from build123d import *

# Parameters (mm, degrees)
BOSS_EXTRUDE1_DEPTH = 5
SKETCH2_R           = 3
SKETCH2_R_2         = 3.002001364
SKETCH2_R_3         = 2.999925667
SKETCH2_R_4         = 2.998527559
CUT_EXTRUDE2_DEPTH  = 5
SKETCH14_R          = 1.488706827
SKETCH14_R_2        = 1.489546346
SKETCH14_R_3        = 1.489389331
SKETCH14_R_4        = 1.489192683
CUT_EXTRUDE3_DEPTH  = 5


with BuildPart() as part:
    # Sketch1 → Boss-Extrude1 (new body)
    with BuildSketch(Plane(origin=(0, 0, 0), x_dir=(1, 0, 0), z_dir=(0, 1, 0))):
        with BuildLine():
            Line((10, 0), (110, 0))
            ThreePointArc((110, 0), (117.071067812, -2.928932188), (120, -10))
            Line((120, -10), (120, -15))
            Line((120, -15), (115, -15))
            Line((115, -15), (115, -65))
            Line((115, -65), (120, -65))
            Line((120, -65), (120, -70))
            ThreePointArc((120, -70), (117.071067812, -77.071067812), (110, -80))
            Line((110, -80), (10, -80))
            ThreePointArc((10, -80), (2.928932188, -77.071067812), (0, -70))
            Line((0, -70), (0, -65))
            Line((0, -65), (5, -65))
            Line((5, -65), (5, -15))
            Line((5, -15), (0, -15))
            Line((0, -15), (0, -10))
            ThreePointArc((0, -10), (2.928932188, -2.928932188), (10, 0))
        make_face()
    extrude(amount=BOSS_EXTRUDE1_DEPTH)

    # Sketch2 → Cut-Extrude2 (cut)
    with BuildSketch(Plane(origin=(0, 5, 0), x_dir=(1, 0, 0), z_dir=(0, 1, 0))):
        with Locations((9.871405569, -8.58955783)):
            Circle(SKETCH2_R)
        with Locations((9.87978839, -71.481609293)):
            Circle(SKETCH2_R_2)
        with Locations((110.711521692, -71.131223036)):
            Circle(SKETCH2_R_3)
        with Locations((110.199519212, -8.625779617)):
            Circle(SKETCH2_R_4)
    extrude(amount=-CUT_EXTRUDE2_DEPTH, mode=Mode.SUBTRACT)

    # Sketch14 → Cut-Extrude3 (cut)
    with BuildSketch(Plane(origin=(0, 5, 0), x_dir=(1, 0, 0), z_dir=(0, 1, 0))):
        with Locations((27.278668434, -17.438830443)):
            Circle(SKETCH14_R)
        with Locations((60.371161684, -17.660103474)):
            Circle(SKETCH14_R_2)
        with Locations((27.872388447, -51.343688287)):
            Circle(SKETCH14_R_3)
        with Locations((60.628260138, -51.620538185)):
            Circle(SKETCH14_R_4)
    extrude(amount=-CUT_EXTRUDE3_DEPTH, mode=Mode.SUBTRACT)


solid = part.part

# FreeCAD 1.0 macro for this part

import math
import FreeCAD as App
import Part
import Sketcher
from FreeCAD import Vector

doc = App.newDocument("Part")
body = doc.addObject("PartDesign::Body", "Body")

# Sketch on XZ plane
sketch1 = body.newObject("Sketcher::SketchObject", "Sketch")
sketch1.AttachmentSupport = (doc.getObject("XZ_Plane"), [""])
sketch1.MapMode = "FlatFace"
sketch1.addGeometry([
    Part.LineSegment(Vector(110, 0, 0), Vector(10, 0, 0)),  # 0
    Part.ArcOfCircle(Part.Circle(Vector(10, 10, 0), Vector(0, 0, 1), 10), math.radians(180), math.radians(270)),  # 1
    Part.LineSegment(Vector(0, 10, 0), Vector(0, 15, 0)),  # 2
    Part.LineSegment(Vector(0, 15, 0), Vector(5, 15, 0)),  # 3
    Part.LineSegment(Vector(5, 15, 0), Vector(5, 65, 0)),  # 4
    Part.LineSegment(Vector(5, 65, 0), Vector(0, 65, 0)),  # 5
    Part.LineSegment(Vector(0, 65, 0), Vector(0, 70, 0)),  # 6
    Part.ArcOfCircle(Part.Circle(Vector(10, 70, 0), Vector(0, 0, 1), 10), math.radians(90), math.radians(180)),  # 7
    Part.LineSegment(Vector(10, 80, 0), Vector(110, 80, 0)),  # 8
    Part.ArcOfCircle(Part.Circle(Vector(110, 70, 0), Vector(0, 0, 1), 10), math.radians(0), math.radians(90)),  # 9
    Part.LineSegment(Vector(120, 70, 0), Vector(120, 65, 0)),  # 10
    Part.LineSegment(Vector(120, 65, 0), Vector(115, 65, 0)),  # 11
    Part.LineSegment(Vector(115, 65, 0), Vector(115, 15, 0)),  # 12
    Part.LineSegment(Vector(115, 15, 0), Vector(120, 15, 0)),  # 13
    Part.LineSegment(Vector(120, 15, 0), Vector(120, 10, 0)),  # 14
    Part.ArcOfCircle(Part.Circle(Vector(110, 10, 0), Vector(0, 0, 1), 10), math.radians(-90), math.radians(0)),  # 15
], False)
sketch1.addConstraint([
    Sketcher.Constraint("Tangent", 0, 2, 1, 2),
    Sketcher.Constraint("Tangent", 1, 1, 2, 1),
    Sketcher.Constraint("Coincident", 2, 2, 3, 1),
    Sketcher.Constraint("Coincident", 3, 2, 4, 1),
    Sketcher.Constraint("Coincident", 4, 2, 5, 1),
    Sketcher.Constraint("Coincident", 5, 2, 6, 1),
    Sketcher.Constraint("Tangent", 6, 2, 7, 2),
    Sketcher.Constraint("Tangent", 7, 1, 8, 1),
    Sketcher.Constraint("Tangent", 8, 2, 9, 2),
    Sketcher.Constraint("Tangent", 9, 1, 10, 1),
    Sketcher.Constraint("Coincident", 10, 2, 11, 1),
    Sketcher.Constraint("Coincident", 11, 2, 12, 1),
    Sketcher.Constraint("Coincident", 12, 2, 13, 1),
    Sketcher.Constraint("Coincident", 13, 2, 14, 1),
    Sketcher.Constraint("Tangent", 14, 2, 15, 2),
    Sketcher.Constraint("Tangent", 15, 1, 0, 1),
    Sketcher.Constraint("Horizontal", 0),
    Sketcher.Constraint("Vertical", 2),
    Sketcher.Constraint("Horizontal", 3),
    Sketcher.Constraint("Vertical", 4),
    Sketcher.Constraint("Horizontal", 5),
    Sketcher.Constraint("Vertical", 6),
    Sketcher.Constraint("Horizontal", 8),
    Sketcher.Constraint("Vertical", 10),
    Sketcher.Constraint("Horizontal", 11),
    Sketcher.Constraint("Vertical", 12),
    Sketcher.Constraint("Horizontal", 13),
    Sketcher.Constraint("Vertical", 14),
    Sketcher.Constraint("Equal", 1, 7),
    Sketcher.Constraint("Equal", 7, 9),
    Sketcher.Constraint("Equal", 9, 15),
    Sketcher.Constraint("PointOnObject", 0, 2, -1),
    Sketcher.Constraint("PointOnObject", 1, 1, -2),
    Sketcher.Constraint("PointOnObject", 5, 2, -2),
    Sketcher.Constraint("Horizontal", 5, 2, 10, 2),
    Sketcher.Constraint("Horizontal", 3, 2, 12, 2),
    Sketcher.Constraint("Vertical", 9, 3, 15, 3),
    Sketcher.Constraint("Equal", 5, 11),
    Sketcher.Constraint("Equal", 13, 2),
    Sketcher.Constraint("Equal", 2, 6),
    Sketcher.Constraint("Radius", 1, 10.0),
    Sketcher.Constraint("DistanceX", 0, 2, 0, 1, 100.0),
    Sketcher.Constraint("DistanceX", 3, 1, 3, 2, 5.0),
    Sketcher.Constraint("DistanceY", 4, 1, 4, 2, 50.0),
])
pad1 = body.newObject("PartDesign::Pad", "Pad")
pad1.Profile = sketch1
pad1.Length = 5
pad1.Reversed = True

# Sketch on XZ plane
sketch2 = body.newObject("Sketcher::SketchObject", "Sketch001")
sketch2.AttachmentSupport = (doc.getObject("XZ_Plane"), [""])
sketch2.MapMode = "FlatFace"
sketch2.AttachmentOffset = App.Placement(Vector(0, 0, -5), App.Rotation())
sketch2.addGeometry([
    Part.Circle(Vector(9.9, 8.6, 0), Vector(0, 0, 1), 3),
    Part.Circle(Vector(9.9, 71.5, 0), Vector(0, 0, 1), 3),
    Part.Circle(Vector(110.7, 71.1, 0), Vector(0, 0, 1), 3),
    Part.Circle(Vector(110.2, 8.6, 0), Vector(0, 0, 1), 3),
], False)
sketch2.addConstraint([
    Sketcher.Constraint("Diameter", 0, 6.0),
    Sketcher.Constraint("Diameter", 2, 5.999851),
    Sketcher.Constraint("Diameter", 1, 6.004003),
    Sketcher.Constraint("Diameter", 3, 5.997055),
    Sketcher.Constraint("DistanceX", -1, 1, 1, 3, 9.879788),
    Sketcher.Constraint("DistanceY", -1, 1, 1, 3, 71.481609),
    Sketcher.Constraint("DistanceX", -1, 1, 2, 3, 110.711522),
    Sketcher.Constraint("DistanceX", -1, 1, 3, 3, 110.199519),
    Sketcher.Constraint("DistanceY", -1, 1, 3, 3, 8.62578),
    Sketcher.Constraint("DistanceY", 0, 3, 1, 3, 62.892051),
    Sketcher.Constraint("DistanceX", -1, 1, 0, 3, 9.871406),
    Sketcher.Constraint("DistanceY", -1, 1, 2, 3, 71.131223),
])
pocket1 = body.newObject("PartDesign::Pocket", "Pocket")
pocket1.Profile = sketch2
pocket1.Length = 5
pocket1.Reversed = True

# Sketch on XZ plane
sketch3 = body.newObject("Sketcher::SketchObject", "Sketch002")
sketch3.AttachmentSupport = (doc.getObject("XZ_Plane"), [""])
sketch3.MapMode = "FlatFace"
sketch3.AttachmentOffset = App.Placement(Vector(0, 0, -5), App.Rotation())
sketch3.addGeometry([
    Part.Circle(Vector(27.3, 17.4, 0), Vector(0, 0, 1), 1.5),
    Part.Circle(Vector(60.4, 17.7, 0), Vector(0, 0, 1), 1.5),
    Part.Circle(Vector(27.9, 51.3, 0), Vector(0, 0, 1), 1.5),
    Part.Circle(Vector(60.6, 51.6, 0), Vector(0, 0, 1), 1.5),
], False)
sketch3.addConstraint([
    Sketcher.Constraint("Diameter", 2, 2.978779),
    Sketcher.Constraint("Diameter", 0, 2.977414),
    Sketcher.Constraint("Diameter", 1, 2.979093),
    Sketcher.Constraint("Diameter", 3, 2.978385),
    Sketcher.Constraint("DistanceX", 1, 3, 3, 3, 0.257098),
    Sketcher.Constraint("DistanceX", -1, 1, 0, 3, 27.278668),
    Sketcher.Constraint("DistanceY", -1, 1, 0, 3, 17.43883),
    Sketcher.Constraint("DistanceX", -1, 1, 1, 3, 60.371162),
    Sketcher.Constraint("DistanceX", -1, 1, 2, 3, 27.872388),
    Sketcher.Constraint("DistanceY", -1, 1, 2, 3, 51.343688),
    Sketcher.Constraint("DistanceY", -1, 1, 3, 3, 51.620538),
    Sketcher.Constraint("DistanceY", -1, 1, 1, 3, 17.660103),
])
pocket2 = body.newObject("PartDesign::Pocket", "Pocket001")
pocket2.Profile = sketch3
pocket2.Length = 5
pocket2.Reversed = True

doc.recompute()
